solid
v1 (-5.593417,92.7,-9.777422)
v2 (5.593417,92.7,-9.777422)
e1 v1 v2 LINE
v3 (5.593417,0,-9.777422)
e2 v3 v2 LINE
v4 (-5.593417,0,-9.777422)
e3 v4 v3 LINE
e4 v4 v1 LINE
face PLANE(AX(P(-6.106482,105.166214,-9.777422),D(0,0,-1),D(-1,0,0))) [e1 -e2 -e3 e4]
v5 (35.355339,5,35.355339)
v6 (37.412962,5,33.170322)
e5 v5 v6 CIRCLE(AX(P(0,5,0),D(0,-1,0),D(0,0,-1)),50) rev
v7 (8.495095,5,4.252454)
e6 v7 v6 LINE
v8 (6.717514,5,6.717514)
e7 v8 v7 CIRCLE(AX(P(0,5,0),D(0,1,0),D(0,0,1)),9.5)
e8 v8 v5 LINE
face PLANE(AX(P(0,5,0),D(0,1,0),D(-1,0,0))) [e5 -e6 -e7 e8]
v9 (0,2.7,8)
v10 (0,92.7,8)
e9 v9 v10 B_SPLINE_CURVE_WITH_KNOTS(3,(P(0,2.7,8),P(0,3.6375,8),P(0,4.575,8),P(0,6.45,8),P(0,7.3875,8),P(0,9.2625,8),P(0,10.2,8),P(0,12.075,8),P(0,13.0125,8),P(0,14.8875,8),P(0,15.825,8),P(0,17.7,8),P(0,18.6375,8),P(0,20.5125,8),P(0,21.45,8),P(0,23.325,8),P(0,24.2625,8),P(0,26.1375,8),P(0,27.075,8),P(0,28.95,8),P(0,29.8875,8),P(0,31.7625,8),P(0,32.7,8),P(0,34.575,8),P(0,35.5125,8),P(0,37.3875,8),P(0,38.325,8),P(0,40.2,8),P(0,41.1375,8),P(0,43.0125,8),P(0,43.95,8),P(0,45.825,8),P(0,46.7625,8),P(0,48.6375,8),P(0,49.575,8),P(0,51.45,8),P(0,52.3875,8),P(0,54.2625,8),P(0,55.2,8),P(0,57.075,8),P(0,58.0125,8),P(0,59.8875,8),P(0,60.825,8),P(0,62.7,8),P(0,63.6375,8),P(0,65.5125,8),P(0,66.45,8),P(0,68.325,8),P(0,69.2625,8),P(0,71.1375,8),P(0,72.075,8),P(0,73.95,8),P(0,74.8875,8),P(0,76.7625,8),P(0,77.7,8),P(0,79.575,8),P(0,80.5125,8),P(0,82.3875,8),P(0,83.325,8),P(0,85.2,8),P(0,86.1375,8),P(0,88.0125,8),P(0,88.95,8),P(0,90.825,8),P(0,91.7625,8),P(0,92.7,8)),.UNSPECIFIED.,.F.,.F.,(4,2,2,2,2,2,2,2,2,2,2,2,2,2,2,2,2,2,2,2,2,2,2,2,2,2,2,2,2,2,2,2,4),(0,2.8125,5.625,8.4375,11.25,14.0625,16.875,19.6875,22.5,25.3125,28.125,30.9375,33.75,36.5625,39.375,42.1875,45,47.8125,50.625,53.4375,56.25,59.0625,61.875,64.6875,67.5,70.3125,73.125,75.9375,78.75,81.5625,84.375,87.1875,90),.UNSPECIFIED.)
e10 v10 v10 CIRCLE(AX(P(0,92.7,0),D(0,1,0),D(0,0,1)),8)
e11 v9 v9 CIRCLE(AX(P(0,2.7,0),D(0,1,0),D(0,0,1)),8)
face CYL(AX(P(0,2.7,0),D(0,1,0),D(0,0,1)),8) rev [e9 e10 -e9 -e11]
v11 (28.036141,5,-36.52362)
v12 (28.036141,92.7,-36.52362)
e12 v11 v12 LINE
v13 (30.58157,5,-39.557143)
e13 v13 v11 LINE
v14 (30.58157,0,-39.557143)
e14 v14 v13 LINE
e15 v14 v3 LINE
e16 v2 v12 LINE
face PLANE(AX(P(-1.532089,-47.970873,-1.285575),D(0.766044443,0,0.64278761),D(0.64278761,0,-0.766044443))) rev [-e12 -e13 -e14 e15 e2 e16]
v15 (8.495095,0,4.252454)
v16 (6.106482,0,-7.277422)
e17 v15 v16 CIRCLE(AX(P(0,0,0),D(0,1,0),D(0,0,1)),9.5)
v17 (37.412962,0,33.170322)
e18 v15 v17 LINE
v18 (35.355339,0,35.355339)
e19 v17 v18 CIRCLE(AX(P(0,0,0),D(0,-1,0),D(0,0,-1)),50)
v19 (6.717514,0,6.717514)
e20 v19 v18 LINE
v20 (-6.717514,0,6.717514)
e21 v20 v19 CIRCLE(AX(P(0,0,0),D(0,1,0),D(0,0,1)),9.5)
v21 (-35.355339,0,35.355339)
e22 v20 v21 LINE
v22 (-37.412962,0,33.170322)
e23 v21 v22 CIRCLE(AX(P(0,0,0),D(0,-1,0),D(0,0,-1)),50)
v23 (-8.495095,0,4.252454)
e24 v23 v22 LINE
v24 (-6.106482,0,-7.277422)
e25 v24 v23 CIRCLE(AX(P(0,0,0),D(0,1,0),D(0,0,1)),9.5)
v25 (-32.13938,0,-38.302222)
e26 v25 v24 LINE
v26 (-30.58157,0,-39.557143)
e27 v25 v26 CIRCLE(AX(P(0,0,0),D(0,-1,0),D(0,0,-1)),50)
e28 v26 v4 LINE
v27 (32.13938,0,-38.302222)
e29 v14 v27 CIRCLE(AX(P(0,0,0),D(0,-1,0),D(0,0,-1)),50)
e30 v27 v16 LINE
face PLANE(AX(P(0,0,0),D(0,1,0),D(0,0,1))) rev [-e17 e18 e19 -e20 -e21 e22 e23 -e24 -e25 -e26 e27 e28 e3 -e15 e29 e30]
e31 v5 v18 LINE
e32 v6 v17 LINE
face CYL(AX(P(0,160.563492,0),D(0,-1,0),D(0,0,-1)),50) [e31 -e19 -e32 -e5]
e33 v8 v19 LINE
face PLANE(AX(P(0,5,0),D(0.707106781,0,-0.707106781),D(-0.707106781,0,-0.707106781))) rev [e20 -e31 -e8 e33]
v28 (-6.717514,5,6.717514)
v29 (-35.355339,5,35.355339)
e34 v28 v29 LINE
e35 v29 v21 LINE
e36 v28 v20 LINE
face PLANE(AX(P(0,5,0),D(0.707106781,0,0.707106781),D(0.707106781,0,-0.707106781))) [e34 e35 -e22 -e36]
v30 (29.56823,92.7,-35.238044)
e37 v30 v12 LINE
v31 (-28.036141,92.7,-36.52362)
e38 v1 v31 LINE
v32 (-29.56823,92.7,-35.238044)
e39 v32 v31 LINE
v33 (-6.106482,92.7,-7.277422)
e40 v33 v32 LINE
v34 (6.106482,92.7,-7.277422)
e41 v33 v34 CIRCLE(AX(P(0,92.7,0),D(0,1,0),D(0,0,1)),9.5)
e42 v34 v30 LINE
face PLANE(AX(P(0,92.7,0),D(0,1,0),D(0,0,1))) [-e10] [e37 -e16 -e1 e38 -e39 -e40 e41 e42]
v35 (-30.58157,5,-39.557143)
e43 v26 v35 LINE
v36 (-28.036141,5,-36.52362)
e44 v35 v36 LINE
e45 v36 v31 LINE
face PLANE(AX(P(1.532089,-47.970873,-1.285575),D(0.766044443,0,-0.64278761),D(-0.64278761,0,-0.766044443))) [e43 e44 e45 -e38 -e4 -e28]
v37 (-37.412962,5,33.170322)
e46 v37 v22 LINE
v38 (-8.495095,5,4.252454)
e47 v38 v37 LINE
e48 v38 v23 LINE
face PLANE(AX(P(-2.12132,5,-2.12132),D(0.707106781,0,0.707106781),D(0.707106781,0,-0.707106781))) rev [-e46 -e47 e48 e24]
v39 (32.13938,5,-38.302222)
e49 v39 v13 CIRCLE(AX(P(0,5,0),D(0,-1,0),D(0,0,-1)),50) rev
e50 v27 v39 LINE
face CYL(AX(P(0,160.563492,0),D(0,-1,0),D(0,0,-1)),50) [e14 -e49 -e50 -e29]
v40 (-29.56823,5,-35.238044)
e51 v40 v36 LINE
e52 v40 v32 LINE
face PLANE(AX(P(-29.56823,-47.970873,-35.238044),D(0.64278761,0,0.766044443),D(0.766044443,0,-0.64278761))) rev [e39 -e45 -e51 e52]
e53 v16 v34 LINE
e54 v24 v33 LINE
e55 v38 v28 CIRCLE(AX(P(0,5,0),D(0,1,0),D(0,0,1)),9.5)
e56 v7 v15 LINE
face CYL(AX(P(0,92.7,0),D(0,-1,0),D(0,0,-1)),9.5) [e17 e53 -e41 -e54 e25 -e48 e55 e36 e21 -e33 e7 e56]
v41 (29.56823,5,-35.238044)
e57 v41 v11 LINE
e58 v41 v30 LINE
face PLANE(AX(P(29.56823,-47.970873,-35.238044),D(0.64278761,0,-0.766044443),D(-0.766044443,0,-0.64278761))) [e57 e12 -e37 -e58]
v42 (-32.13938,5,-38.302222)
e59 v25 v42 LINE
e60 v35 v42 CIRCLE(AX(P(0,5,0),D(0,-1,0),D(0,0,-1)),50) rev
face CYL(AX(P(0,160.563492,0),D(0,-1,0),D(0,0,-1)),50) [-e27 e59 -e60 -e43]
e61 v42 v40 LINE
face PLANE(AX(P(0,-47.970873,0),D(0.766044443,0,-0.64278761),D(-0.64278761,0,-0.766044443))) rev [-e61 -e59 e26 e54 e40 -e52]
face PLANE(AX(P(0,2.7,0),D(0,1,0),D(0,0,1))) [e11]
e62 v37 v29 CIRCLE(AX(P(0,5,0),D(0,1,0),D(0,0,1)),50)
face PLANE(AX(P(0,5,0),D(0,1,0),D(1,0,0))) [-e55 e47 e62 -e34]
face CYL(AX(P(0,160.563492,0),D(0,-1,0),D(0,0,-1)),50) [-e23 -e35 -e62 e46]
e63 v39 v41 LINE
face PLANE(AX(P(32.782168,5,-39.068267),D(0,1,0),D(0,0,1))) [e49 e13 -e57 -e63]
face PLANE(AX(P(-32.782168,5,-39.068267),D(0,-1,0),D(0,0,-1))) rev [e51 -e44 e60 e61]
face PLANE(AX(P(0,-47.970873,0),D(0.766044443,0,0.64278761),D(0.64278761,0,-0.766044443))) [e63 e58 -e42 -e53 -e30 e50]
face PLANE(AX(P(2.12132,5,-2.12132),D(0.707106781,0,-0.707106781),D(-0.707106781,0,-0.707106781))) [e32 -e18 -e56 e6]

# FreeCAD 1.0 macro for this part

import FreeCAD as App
import Part
import Sketcher
Q = App.Units.Quantity


def add_polygon(sketch, points):
    """Adds a closed chain of lines whose ends are joined by coincident constraints."""
    first, n = sketch.GeometryCount, len(points)
    for a, b in zip(points, points[1:] + points[:1]):
        sketch.addGeometry(Part.LineSegment(App.Vector(*a, 0), App.Vector(*b, 0)), False)
    for i in range(n):
        sketch.addConstraint(Sketcher.Constraint("Coincident", first + i, 2, first + (i + 1) % n, 1))

doc = App.newDocument("Part")
params = doc.addObject("Spreadsheet::Sheet", "Params")
for row, (alias, value) in enumerate([
    ("sketch1_diameter", "19 mm"),
    ("pad1_length", "92.7 mm"),
    ("sketch2_length", "46 mm"),
    ("sketch2_length2", "2 mm"),
    ("pad2_length", "92.7 mm"),
    ("sketch3_width", "2 mm"),
    ("sketch3_height", "5 mm"),
    ("pad3_length", "5 mm"),
    ("sketch4_length", "51 mm"),
    ("sketch4_length2", "3 mm"),
    ("pad4_length", "5 mm"),
    ("sketch5_height", "2.5 mm"),
    ("pad5_length", "92.7 mm"),
    ("sketch6_diameter", "16 mm"),
    ("pocket1_length", "90 mm"),
    ("sketch7_diameter", "110 mm"),
    ("sketch7_diameter2", "100 mm"),
    ("pocket2_length", "5 mm"),
], start=1):
    params.set(f"A{row}", alias)
    params.set(f"B{row}", "=" + value)
    params.setAlias(f"B{row}", alias)

body = doc.addObject("PartDesign::Body", "Body")

sketch1 = doc.addObject("Sketcher::SketchObject", "Sketch")
body.addObject(sketch1)
sketch1.AttachmentSupport = (doc.XZ_Plane, [""])
sketch1.MapMode = "FlatFace"
sketch1.addGeometry(Part.Circle(App.Vector(0, 0, 0), App.Vector(0, 0, 1), 9.5), False)
sketch1.addConstraint([
    Sketcher.Constraint("Coincident", 0, 3, -1, 1),
    Sketcher.Constraint("Diameter", 0, 19.0),
])
sketch1.setExpression("Constraints[1]", "Params.sketch1_diameter")
pad1 = doc.addObject("PartDesign::Pad", "Pad")
body.addObject(pad1)
pad1.Profile = sketch1
pad1.setExpression("Length", "Params.pad1_length")
pad1.Reversed = True

sketch2 = doc.addObject("Sketcher::SketchObject", "Sketch001")
body.addObject(sketch2)
sketch2.AttachmentSupport = (doc.XZ_Plane, [""])
sketch2.MapMode = "FlatFace"
sketch2.AttachmentOffset = App.Placement(App.Vector(0, 0, -92.7), App.Rotation())
add_polygon(sketch2, [(-29.56823, -35.238044), (0, 0), (1.532089, -1.285575), (-28.036141, -36.52362)])
sketch2.addConstraint([
    Sketcher.Constraint("Coincident", 0, 2, -1, 1),
    Sketcher.Constraint("Perpendicular", 0, 1),
    Sketcher.Constraint("Perpendicular", 1, 2),
    Sketcher.Constraint("Perpendicular", 2, 3),
    Sketcher.Constraint("Angle", 0, Q("50 deg")),
    Sketcher.Constraint("Distance", 0, 46.0),
    Sketcher.Constraint("Distance", 1, 2.0),
])
sketch2.setExpression("Constraints[9]", "Params.sketch2_length")
sketch2.setExpression("Constraints[10]", "Params.sketch2_length2")
pad2 = doc.addObject("PartDesign::Pad", "Pad001")
body.addObject(pad2)
pad2.Profile = sketch2
pad2.setExpression("Length", "Params.pad2_length")

sketch3 = doc.addObject("Sketcher::SketchObject", "Sketch002")
body.addObject(sketch3)
sketch3.Placement = App.Placement(App.Vector(-29.56823, 0, -35.238044), App.Rotation(App.Vector(-0.766044443, 0, 0.64278761), App.Vector(0, 1, 0), App.Vector(-0.64278761, 0, -0.766044443), "ZXY"))
add_polygon(sketch3, [(-2, 5), (-2, 0), (0, 0), (0, 5)])
sketch3.addConstraint([
    Sketcher.Constraint("Vertical", 0),
    Sketcher.Constraint("Horizontal", 1),
    Sketcher.Constraint("Vertical", 2),
    Sketcher.Constraint("Horizontal", 3),
    Sketcher.Constraint("Coincident", 1, 2, -1, 1),
    Sketcher.Constraint("DistanceX", 1, 1, 1, 2, 2.0),
    Sketcher.Constraint("DistanceY", 0, 2, 0, 1, 5.0),
])
sketch3.setExpression("Constraints[9]", "Params.sketch3_width")
sketch3.setExpression("Constraints[10]", "Params.sketch3_height")
pad3 = doc.addObject("PartDesign::Pad", "Pad002")
body.addObject(pad3)
pad3.Profile = sketch3
pad3.setExpression("Length", "Params.pad3_length")
doc.recompute()

mirrored = doc.addObject("PartDesign::Mirrored", "Mirrored")
body.addObject(mirrored)
mirrored.Originals = [pad2, pad3]
mirrored.MirrorPlane = (doc.YZ_Plane, [""])
body.Tip = mirrored

sketch4 = doc.addObject("Sketcher::SketchObject", "Sketch003")
body.addObject(sketch4)
sketch4.AttachmentSupport = (doc.XZ_Plane, [""])
sketch4.MapMode = "FlatFace"
add_polygon(sketch4, [(36.062446, 36.062446), (0, 0), (2.12132, -2.12132), (38.183766, 33.941125)])
sketch4.addConstraint([
    Sketcher.Constraint("Coincident", 0, 2, -1, 1),
    Sketcher.Constraint("Perpendicular", 0, 1),
    Sketcher.Constraint("Perpendicular", 1, 2),
    Sketcher.Constraint("Perpendicular", 2, 3),
    Sketcher.Constraint("Angle", 0, Q("-135 deg")),
    Sketcher.Constraint("Distance", 0, 51.0),
    Sketcher.Constraint("Distance", 1, 3.0),
])
sketch4.setExpression("Constraints[9]", "Params.sketch4_length")
sketch4.setExpression("Constraints[10]", "Params.sketch4_length2")
pad4 = doc.addObject("PartDesign::Pad", "Pad003")
body.addObject(pad4)
pad4.Profile = sketch4
pad4.setExpression("Length", "Params.pad4_length")
pad4.Reversed = True
doc.recompute()

mirrored2 = doc.addObject("PartDesign::Mirrored", "Mirrored001")
body.addObject(mirrored2)
mirrored2.Originals = [pad4]
mirrored2.MirrorPlane = (doc.YZ_Plane, [""])
body.Tip = mirrored2

sketch5 = doc.addObject("Sketcher::SketchObject", "Sketch004")
body.addObject(sketch5)
sketch5.AttachmentSupport = (doc.XZ_Plane, [""])
sketch5.MapMode = "FlatFace"
add_polygon(sketch5, [(-6.106482, -7.277422), (-6.106482, -9.777422), (6.106482, -9.777422), (6.106482, -7.277422)])
sketch5.addConstraint([
    Sketcher.Constraint("Vertical", 0),
    Sketcher.Constraint("Horizontal", 1),
    Sketcher.Constraint("Vertical", 2),
    Sketcher.Constraint("Horizontal", 3),
    Sketcher.Constraint("DistanceY", 0, 2, 0, 1, 2.5),
    Sketcher.Constraint("DistanceX", 1, 1, 1, 2, 12.212965),
    Sketcher.Constraint("DistanceX", 0, 2, -1, 1, 6.106482),
    Sketcher.Constraint("DistanceY", 0, 2, -1, 1, 9.777422),
])
sketch5.setExpression("Constraints[8]", "Params.sketch5_height")
pad5 = doc.addObject("PartDesign::Pad", "Pad004")
body.addObject(pad5)
pad5.Profile = sketch5
pad5.setExpression("Length", "Params.pad5_length")
pad5.Reversed = True

sketch6 = doc.addObject("Sketcher::SketchObject", "Sketch005")
body.addObject(sketch6)
sketch6.AttachmentSupport = (doc.XZ_Plane, [""])
sketch6.MapMode = "FlatFace"
sketch6.AttachmentOffset = App.Placement(App.Vector(0, 0, -92.7), App.Rotation())
sketch6.addGeometry(Part.Circle(App.Vector(0, 0, 0), App.Vector(0, 0, 1), 8), False)
sketch6.addConstraint([
    Sketcher.Constraint("Coincident", 0, 3, -1, 1),
    Sketcher.Constraint("Diameter", 0, 16.0),
])
sketch6.setExpression("Constraints[1]", "Params.sketch6_diameter")
pocket1 = doc.addObject("PartDesign::Pocket", "Pocket")
body.addObject(pocket1)
pocket1.Profile = sketch6
pocket1.setExpression("Length", "Params.pocket1_length")
pocket1.Reversed = True

sketch7 = doc.addObject("Sketcher::SketchObject", "Sketch006")
body.addObject(sketch7)
sketch7.AttachmentSupport = (doc.XZ_Plane, [""])
sketch7.MapMode = "FlatFace"
sketch7.addGeometry([
    Part.Circle(App.Vector(0, 0, 0), App.Vector(0, 0, 1), 55),
    Part.Circle(App.Vector(0, 0, 0), App.Vector(0, 0, 1), 50),
], False)
sketch7.addConstraint([
    Sketcher.Constraint("Coincident", 0, 3, -1, 1),
    Sketcher.Constraint("Coincident", 1, 3, -1, 1),
    Sketcher.Constraint("Diameter", 0, 110.0),
    Sketcher.Constraint("Diameter", 1, 100.0),
])
sketch7.setExpression("Constraints[2]", "Params.sketch7_diameter")
sketch7.setExpression("Constraints[3]", "Params.sketch7_diameter2")
pocket2 = doc.addObject("PartDesign::Pocket", "Pocket001")
body.addObject(pocket2)
pocket2.Profile = sketch7
pocket2.setExpression("Length", "Params.pocket2_length")

doc.recompute()
